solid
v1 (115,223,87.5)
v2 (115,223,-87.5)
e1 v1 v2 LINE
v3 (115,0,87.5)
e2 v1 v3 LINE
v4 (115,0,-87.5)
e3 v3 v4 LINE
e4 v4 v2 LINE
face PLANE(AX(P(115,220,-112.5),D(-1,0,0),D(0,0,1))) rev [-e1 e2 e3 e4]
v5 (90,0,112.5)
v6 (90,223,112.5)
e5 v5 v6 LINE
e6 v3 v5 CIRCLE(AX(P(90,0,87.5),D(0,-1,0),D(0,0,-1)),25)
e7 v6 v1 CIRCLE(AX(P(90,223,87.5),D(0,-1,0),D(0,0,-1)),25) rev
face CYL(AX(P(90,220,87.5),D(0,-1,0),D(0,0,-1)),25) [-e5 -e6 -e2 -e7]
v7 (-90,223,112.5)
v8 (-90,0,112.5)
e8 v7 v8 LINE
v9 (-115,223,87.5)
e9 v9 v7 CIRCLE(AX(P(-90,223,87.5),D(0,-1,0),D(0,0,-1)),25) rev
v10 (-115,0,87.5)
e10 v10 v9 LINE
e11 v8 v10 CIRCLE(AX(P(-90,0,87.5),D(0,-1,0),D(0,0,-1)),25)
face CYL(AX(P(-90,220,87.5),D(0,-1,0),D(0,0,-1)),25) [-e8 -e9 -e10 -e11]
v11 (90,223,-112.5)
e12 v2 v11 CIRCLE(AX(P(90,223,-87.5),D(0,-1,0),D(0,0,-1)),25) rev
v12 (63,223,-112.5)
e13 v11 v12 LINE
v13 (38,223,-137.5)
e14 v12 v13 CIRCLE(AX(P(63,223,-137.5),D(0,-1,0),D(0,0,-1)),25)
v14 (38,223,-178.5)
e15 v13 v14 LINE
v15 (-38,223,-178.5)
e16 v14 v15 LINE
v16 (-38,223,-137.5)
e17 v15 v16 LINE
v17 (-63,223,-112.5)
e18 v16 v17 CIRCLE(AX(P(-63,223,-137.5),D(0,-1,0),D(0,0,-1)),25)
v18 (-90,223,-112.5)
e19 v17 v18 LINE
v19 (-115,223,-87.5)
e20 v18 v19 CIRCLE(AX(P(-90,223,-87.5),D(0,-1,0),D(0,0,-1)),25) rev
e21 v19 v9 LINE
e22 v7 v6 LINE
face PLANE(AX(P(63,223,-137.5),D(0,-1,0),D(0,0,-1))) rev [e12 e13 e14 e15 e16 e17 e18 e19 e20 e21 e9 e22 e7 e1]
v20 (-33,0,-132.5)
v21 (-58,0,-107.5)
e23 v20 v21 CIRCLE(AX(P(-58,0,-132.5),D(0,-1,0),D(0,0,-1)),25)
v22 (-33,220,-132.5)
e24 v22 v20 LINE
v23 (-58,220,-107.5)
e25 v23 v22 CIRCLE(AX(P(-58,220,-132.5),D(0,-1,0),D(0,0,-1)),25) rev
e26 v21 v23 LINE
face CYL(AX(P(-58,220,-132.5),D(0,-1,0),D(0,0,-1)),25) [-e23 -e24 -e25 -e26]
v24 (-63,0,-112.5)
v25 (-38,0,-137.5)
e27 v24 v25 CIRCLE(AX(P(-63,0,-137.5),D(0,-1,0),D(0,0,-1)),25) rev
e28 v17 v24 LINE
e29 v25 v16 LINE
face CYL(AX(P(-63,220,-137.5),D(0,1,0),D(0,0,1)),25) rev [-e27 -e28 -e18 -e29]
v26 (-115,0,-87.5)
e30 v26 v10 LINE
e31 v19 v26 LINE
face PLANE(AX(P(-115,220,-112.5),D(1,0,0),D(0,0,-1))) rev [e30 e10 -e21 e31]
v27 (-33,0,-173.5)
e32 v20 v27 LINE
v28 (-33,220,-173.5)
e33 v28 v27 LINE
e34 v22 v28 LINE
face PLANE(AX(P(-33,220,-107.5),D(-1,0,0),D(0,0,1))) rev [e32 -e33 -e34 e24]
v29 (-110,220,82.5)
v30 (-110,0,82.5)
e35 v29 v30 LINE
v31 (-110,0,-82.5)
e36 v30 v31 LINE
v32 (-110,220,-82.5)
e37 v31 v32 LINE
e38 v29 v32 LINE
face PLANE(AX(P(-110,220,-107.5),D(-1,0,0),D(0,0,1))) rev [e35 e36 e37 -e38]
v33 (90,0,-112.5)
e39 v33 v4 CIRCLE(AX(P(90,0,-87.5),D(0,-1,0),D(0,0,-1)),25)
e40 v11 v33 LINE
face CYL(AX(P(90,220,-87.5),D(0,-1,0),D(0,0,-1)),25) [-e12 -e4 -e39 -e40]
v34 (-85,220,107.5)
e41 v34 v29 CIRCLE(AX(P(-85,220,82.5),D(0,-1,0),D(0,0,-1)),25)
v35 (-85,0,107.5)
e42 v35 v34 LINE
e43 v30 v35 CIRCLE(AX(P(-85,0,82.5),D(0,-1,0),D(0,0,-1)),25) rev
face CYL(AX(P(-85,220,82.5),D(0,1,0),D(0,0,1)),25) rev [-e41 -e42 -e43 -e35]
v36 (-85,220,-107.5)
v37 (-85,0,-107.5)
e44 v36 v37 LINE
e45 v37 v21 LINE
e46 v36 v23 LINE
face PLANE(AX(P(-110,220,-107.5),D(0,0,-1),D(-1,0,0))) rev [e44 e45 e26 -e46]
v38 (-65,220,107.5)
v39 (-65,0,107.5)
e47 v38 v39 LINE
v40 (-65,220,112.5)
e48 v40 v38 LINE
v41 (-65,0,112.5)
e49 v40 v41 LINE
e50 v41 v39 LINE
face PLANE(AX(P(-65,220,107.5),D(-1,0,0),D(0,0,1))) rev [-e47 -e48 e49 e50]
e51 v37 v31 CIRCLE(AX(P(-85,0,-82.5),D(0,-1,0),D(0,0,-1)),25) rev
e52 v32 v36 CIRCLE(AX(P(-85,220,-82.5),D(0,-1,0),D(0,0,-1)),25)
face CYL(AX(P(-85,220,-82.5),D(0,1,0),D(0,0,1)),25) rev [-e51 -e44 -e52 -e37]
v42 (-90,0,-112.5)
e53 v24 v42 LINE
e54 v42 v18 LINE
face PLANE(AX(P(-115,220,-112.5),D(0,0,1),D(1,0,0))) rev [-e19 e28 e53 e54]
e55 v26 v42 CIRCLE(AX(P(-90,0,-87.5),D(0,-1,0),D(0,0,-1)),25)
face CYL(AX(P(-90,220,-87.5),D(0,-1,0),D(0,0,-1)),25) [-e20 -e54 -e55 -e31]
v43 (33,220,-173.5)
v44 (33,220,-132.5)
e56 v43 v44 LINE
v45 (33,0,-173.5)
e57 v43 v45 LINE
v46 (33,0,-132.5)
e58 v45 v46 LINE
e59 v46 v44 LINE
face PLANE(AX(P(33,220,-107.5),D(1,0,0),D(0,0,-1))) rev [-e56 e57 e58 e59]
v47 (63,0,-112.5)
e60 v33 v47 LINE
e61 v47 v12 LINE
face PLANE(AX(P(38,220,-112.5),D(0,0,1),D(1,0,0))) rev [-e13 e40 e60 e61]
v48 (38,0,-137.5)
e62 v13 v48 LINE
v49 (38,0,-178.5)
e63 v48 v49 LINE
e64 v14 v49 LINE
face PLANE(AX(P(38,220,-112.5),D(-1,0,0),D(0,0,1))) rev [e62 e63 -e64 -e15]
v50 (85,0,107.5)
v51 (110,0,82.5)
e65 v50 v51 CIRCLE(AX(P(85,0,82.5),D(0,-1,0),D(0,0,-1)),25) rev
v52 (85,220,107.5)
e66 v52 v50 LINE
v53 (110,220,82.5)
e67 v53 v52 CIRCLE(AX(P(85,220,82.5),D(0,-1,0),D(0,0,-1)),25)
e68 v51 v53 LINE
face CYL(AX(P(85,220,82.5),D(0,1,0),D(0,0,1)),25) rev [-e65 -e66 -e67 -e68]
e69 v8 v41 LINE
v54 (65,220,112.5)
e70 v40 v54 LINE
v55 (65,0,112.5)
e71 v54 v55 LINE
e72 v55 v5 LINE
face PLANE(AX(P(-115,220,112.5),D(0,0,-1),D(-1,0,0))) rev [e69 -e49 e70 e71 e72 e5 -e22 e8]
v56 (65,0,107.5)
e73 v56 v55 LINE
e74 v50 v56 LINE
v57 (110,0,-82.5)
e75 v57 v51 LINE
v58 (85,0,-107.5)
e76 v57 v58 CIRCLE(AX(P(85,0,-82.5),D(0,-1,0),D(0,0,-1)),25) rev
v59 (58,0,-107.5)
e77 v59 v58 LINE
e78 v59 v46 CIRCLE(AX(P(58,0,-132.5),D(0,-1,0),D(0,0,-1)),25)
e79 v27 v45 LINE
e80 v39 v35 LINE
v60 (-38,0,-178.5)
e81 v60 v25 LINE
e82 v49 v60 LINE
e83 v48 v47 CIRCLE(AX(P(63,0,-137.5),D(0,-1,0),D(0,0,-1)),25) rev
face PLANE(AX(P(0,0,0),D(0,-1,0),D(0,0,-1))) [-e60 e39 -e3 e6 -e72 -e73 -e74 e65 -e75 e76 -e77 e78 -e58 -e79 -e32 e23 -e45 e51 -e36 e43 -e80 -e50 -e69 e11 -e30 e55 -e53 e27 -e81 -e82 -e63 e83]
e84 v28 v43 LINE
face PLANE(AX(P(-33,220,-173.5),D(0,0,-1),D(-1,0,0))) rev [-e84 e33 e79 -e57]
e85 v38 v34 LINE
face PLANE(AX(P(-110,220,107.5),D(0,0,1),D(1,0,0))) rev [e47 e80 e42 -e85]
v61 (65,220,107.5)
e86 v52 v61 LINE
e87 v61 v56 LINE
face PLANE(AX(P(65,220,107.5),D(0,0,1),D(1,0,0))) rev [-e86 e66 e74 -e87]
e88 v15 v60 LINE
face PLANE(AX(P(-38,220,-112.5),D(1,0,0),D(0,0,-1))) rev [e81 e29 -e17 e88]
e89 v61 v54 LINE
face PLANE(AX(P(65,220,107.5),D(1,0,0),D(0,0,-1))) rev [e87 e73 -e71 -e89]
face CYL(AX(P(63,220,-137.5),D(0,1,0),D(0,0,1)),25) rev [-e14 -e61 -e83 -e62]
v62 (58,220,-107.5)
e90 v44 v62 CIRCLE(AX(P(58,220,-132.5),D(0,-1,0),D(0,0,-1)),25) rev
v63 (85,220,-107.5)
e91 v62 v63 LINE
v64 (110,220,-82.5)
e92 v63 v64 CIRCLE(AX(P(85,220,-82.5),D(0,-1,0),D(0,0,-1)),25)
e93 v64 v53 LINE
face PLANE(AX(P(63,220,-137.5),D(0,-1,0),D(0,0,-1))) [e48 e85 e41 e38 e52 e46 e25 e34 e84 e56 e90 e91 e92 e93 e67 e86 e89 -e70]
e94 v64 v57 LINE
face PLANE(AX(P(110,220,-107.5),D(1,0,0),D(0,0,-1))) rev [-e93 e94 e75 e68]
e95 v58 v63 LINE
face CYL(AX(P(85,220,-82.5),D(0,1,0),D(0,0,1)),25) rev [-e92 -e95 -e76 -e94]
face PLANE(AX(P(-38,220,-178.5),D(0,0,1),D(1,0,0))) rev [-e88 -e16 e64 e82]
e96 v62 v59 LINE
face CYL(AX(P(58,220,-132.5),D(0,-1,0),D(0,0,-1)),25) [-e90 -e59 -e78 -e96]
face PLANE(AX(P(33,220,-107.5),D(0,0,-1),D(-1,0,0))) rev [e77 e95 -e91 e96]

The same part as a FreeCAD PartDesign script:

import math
import FreeCAD as App
import Part
import Sketcher
from FreeCAD import Vector


def edges_at(feature, points):
    """Names of the edges that pass closest to the given points."""
    edges = feature.Shape.Edges
    near = lambda p: min(range(len(edges)), key=lambda i: edges[i].distToShape(Part.Vertex(*p))[0])
    return sorted({f"Edge{near(p) + 1}" for p in points})

doc = App.newDocument("Part")
body = doc.addObject("PartDesign::Body", "Body")

# Sketch on XZ plane
sketch1 = body.newObject("Sketcher::SketchObject", "Sketch")
sketch1.AttachmentSupport = (doc.getObject("XZ_Plane"), [""])
sketch1.MapMode = "FlatFace"
sketch1.addGeometry([
    Part.LineSegment(Vector(33, -108, 0), Vector(110, -108, 0)),  # 0
    Part.LineSegment(Vector(110, -108, 0), Vector(110, 108, 0)),  # 1
    Part.LineSegment(Vector(110, 108, 0), Vector(65, 108, 0)),  # 2
    Part.LineSegment(Vector(65, 108, 0), Vector(65, 112, 0)),  # 3
    Part.LineSegment(Vector(65, 112, 0), Vector(115, 112, 0)),  # 4
    Part.LineSegment(Vector(115, 112, 0), Vector(115, -112, 0)),  # 5
    Part.LineSegment(Vector(115, -112, 0), Vector(38, -112, 0)),  # 6
    Part.LineSegment(Vector(38, -112, 0), Vector(38, -178, 0)),  # 7
    Part.LineSegment(Vector(38, -178, 0), Vector(-38, -178, 0)),  # 8
    Part.LineSegment(Vector(-38, -178, 0), Vector(-38, -112, 0)),  # 9
    Part.LineSegment(Vector(-38, -112, 0), Vector(-115, -112, 0)),  # 10
    Part.LineSegment(Vector(-115, -112, 0), Vector(-115, 112, 0)),  # 11
    Part.LineSegment(Vector(-115, 112, 0), Vector(-65, 112, 0)),  # 12
    Part.LineSegment(Vector(-65, 112, 0), Vector(-65, 108, 0)),  # 13
    Part.LineSegment(Vector(-65, 108, 0), Vector(-110, 108, 0)),  # 14
    Part.LineSegment(Vector(-110, 108, 0), Vector(-110, -108, 0)),  # 15
    Part.LineSegment(Vector(-110, -108, 0), Vector(-33, -108, 0)),  # 16
    Part.LineSegment(Vector(-33, -108, 0), Vector(-33, -174, 0)),  # 17
    Part.LineSegment(Vector(-33, -174, 0), Vector(33, -174, 0)),  # 18
    Part.LineSegment(Vector(33, -174, 0), Vector(33, -108, 0)),  # 19
], False)
sketch1.addConstraint([
    Sketcher.Constraint("Coincident", 0, 2, 1, 1),
    Sketcher.Constraint("Coincident", 1, 2, 2, 1),
    Sketcher.Constraint("Coincident", 2, 2, 3, 1),
    Sketcher.Constraint("Coincident", 3, 2, 4, 1),
    Sketcher.Constraint("Coincident", 4, 2, 5, 1),
    Sketcher.Constraint("Coincident", 5, 2, 6, 1),
    Sketcher.Constraint("Coincident", 6, 2, 7, 1),
    Sketcher.Constraint("Coincident", 7, 2, 8, 1),
    Sketcher.Constraint("Coincident", 8, 2, 9, 1),
    Sketcher.Constraint("Coincident", 9, 2, 10, 1),
    Sketcher.Constraint("Coincident", 10, 2, 11, 1),
    Sketcher.Constraint("Coincident", 11, 2, 12, 1),
    Sketcher.Constraint("Coincident", 12, 2, 13, 1),
    Sketcher.Constraint("Coincident", 13, 2, 14, 1),
    Sketcher.Constraint("Coincident", 14, 2, 15, 1),
    Sketcher.Constraint("Coincident", 15, 2, 16, 1),
    Sketcher.Constraint("Coincident", 16, 2, 17, 1),
    Sketcher.Constraint("Coincident", 17, 2, 18, 1),
    Sketcher.Constraint("Coincident", 18, 2, 19, 1),
    Sketcher.Constraint("Coincident", 19, 2, 0, 1),
    Sketcher.Constraint("Horizontal", 0),
    Sketcher.Constraint("Vertical", 1),
    Sketcher.Constraint("Horizontal", 2),
    Sketcher.Constraint("Vertical", 3),
    Sketcher.Constraint("Horizontal", 4),
    Sketcher.Constraint("Vertical", 5),
    Sketcher.Constraint("Horizontal", 6),
    Sketcher.Constraint("Vertical", 7),
    Sketcher.Constraint("Horizontal", 8),
    Sketcher.Constraint("Vertical", 9),
    Sketcher.Constraint("Horizontal", 10),
    Sketcher.Constraint("Vertical", 11),
    Sketcher.Constraint("Horizontal", 12),
    Sketcher.Constraint("Vertical", 13),
    Sketcher.Constraint("Horizontal", 14),
    Sketcher.Constraint("Vertical", 15),
    Sketcher.Constraint("Horizontal", 16),
    Sketcher.Constraint("Vertical", 17),
    Sketcher.Constraint("Horizontal", 18),
    Sketcher.Constraint("Vertical", 19),
    Sketcher.Constraint("Symmetric", 4, 2, 10, 2, -1, 1),
    Sketcher.Constraint("Symmetric", 0, 2, 14, 2, -1, 1),
    Sketcher.Constraint("Symmetric", 6, 2, 9, 2, -2),
    Sketcher.Constraint("Symmetric", 3, 2, 12, 2, -2),
    Sketcher.Constraint("Symmetric", 16, 2, 19, 2, -2),
    Sketcher.Constraint("Horizontal", 2, 2, 13, 2),
    Sketcher.Constraint("Equal", 0, 6),
    Sketcher.Constraint("Equal", 18, 7),
    Sketcher.Constraint("Equal", 9, 17),
    Sketcher.Constraint("DistanceX", 0, 1, 0, 2, 77.0),
    Sketcher.Constraint("DistanceX", 2, 2, 2, 1, 45.0),
    Sketcher.Constraint("DistanceX", 4, 1, 4, 2, 50.0),
    Sketcher.Constraint("DistanceX", 8, 2, 8, 1, 76.0),
    Sketcher.Constraint("DistanceY", 1, 1, 1, 2, 215.0),
    Sketcher.Constraint("DistanceY", 3, 1, 3, 2, 5.0),
])
pad1 = body.newObject("PartDesign::Pad", "Pad")
pad1.Profile = sketch1
pad1.Length = 220
pad1.Reversed = True
doc.recompute()

fillet = body.newObject("PartDesign::Fillet", "Fillet")
fillet.Base = (pad1, edges_at(pad1, [
    (33, 110, -107.5),
    (-33, 110, -107.5),
    (-38, 110, -112.5),
    (38, 110, -112.5),
]))
fillet.Radius = 25

# Sketch on XZ plane
sketch2 = body.newObject("Sketcher::SketchObject", "Sketch001")
sketch2.AttachmentSupport = (doc.getObject("XZ_Plane"), [""])
sketch2.MapMode = "FlatFace"
sketch2.AttachmentOffset = App.Placement(Vector(0, 0, -223), App.Rotation())
sketch2.addGeometry([
    Part.LineSegment(Vector(-115, 112, 0), Vector(115, 112, 0)),  # 0
    Part.LineSegment(Vector(115, 112, 0), Vector(115, -112, 0)),  # 1
    Part.LineSegment(Vector(115, -112, 0), Vector(63, -112, 0)),  # 2
    Part.ArcOfCircle(Part.Circle(Vector(63, -137, 0), Vector(0, 0, 1), 25), math.radians(90), math.radians(180)),  # 3
    Part.LineSegment(Vector(38, -138, 0), Vector(38, -178, 0)),  # 4
    Part.LineSegment(Vector(38, -178, 0), Vector(-38, -178, 0)),  # 5
    Part.LineSegment(Vector(-38, -178, 0), Vector(-38, -138, 0)),  # 6
    Part.ArcOfCircle(Part.Circle(Vector(-63, -137, 0), Vector(0, 0, 1), 25), math.radians(0), math.radians(90)),  # 7
    Part.LineSegment(Vector(-63, -112, 0), Vector(-115, -112, 0)),  # 8
    Part.LineSegment(Vector(-115, -112, 0), Vector(-115, 112, 0)),  # 9
], False)
sketch2.addConstraint([
    Sketcher.Constraint("Coincident", 0, 2, 1, 1),
    Sketcher.Constraint("Coincident", 1, 2, 2, 1),
    Sketcher.Constraint("Tangent", 2, 2, 3, 1),
    Sketcher.Constraint("Tangent", 3, 2, 4, 1),
    Sketcher.Constraint("Coincident", 4, 2, 5, 1),
    Sketcher.Constraint("Coincident", 5, 2, 6, 1),
    Sketcher.Constraint("Tangent", 6, 2, 7, 1),
    Sketcher.Constraint("Tangent", 7, 2, 8, 1),
    Sketcher.Constraint("Coincident", 8, 2, 9, 1),
    Sketcher.Constraint("Coincident", 9, 2, 0, 1),
    Sketcher.Constraint("Horizontal", 0),
    Sketcher.Constraint("Vertical", 1),
    Sketcher.Constraint("Horizontal", 2),
    Sketcher.Constraint("Vertical", 4),
    Sketcher.Constraint("Horizontal", 5),
    Sketcher.Constraint("Vertical", 6),
    Sketcher.Constraint("Horizontal", 8),
    Sketcher.Constraint("Vertical", 9),
    Sketcher.Constraint("Equal", 3, 7),
    Sketcher.Constraint("Symmetric", 0, 2, 8, 2, -1, 1),
    Sketcher.Constraint("Symmetric", 3, 3, 7, 3, -2),
    Sketcher.Constraint("Radius", 3, 25.0),
    Sketcher.Constraint("DistanceX", 0, 1, 0, 2, 230.0),
    Sketcher.Constraint("DistanceX", 2, 2, 2, 1, 52.0),
    Sketcher.Constraint("DistanceY", 1, 2, 1, 1, 225.0),
    Sketcher.Constraint("DistanceY", 4, 2, 4, 1, 41.0),
])
pad2 = body.newObject("PartDesign::Pad", "Pad001")
pad2.Profile = sketch2
pad2.Length = 3
doc.recompute()

fillet2 = body.newObject("PartDesign::Fillet", "Fillet001")
fillet2.Base = (pad2, edges_at(pad2, [
    (110, 110, 107.5),
    (110, 110, -107.5),
    (-110, 110, -107.5),
    (-110, 110, 107.5),
    (-115, 111.5, 112.5),
    (-115, 111.5, -112.5),
    (115, 111.5, -112.5),
    (115, 111.5, 112.5),
]))
fillet2.Radius = 25

doc.recompute()
